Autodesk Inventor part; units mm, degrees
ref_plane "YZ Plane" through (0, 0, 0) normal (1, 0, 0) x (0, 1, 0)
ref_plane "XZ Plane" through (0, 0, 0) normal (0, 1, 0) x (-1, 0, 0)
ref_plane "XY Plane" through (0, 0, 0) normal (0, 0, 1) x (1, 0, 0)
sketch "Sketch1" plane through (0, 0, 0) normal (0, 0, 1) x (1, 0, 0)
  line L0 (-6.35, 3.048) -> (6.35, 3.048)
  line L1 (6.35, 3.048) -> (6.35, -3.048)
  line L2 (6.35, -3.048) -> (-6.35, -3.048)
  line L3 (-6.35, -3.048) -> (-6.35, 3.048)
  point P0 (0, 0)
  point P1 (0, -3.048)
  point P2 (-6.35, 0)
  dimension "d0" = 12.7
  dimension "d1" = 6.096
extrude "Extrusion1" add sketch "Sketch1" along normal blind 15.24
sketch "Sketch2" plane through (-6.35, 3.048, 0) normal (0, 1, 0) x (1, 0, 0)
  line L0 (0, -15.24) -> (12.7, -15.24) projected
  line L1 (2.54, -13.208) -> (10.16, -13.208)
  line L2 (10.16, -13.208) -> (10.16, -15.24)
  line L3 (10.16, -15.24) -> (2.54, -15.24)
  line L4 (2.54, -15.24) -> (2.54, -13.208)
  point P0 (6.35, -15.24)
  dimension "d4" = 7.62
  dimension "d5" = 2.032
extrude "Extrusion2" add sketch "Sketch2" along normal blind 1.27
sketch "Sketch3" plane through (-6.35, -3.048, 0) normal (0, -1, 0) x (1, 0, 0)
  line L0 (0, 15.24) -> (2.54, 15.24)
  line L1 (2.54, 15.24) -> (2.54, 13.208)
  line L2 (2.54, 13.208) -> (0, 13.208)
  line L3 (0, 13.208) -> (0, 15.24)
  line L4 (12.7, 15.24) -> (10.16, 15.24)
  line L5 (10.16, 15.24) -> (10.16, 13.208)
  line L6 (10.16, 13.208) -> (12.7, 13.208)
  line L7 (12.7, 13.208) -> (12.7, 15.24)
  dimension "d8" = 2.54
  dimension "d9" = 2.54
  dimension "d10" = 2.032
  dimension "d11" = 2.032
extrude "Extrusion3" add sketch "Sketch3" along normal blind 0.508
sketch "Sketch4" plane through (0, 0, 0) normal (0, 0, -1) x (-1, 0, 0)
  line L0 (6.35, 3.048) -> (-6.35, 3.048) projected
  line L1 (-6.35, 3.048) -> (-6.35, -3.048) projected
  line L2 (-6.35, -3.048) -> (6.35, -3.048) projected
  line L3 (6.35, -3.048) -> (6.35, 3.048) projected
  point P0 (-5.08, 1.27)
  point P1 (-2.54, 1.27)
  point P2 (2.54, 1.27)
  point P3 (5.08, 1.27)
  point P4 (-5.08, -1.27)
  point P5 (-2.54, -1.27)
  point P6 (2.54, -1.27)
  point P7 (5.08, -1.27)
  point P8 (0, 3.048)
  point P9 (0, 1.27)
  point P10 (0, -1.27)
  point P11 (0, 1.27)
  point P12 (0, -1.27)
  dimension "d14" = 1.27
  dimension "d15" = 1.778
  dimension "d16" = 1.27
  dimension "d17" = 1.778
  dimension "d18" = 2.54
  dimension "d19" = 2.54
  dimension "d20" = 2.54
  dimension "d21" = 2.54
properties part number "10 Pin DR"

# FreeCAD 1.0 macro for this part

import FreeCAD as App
import Part
import Sketcher
Q = App.Units.Quantity


def add_polygon(sketch, points):
    """Adds a closed chain of lines whose ends are joined by coincident constraints."""
    first, n = sketch.GeometryCount, len(points)
    for a, b in zip(points, points[1:] + points[:1]):
        sketch.addGeometry(Part.LineSegment(App.Vector(*a, 0), App.Vector(*b, 0)), False)
    for i in range(n):
        sketch.addConstraint(Sketcher.Constraint("Coincident", first + i, 2, first + (i + 1) % n, 1))

doc = App.newDocument("Part")
body = doc.addObject("PartDesign::Body", "Body")

# Sketch on XY plane
sketch1 = body.newObject("Sketcher::SketchObject", "Sketch")
sketch1.AttachmentSupport = (doc.getObject("XY_Plane"), [""])
sketch1.MapMode = "FlatFace"
add_polygon(sketch1, [(6.35, 3.048), (-6.35, 3.048), (-6.35, -3.048), (6.35, -3.048)])  # lines 0-3
sketch1.addConstraint([
    Sketcher.Constraint("Horizontal", 0),
    Sketcher.Constraint("Vertical", 1),
    Sketcher.Constraint("Horizontal", 2),
    Sketcher.Constraint("Vertical", 3),
    Sketcher.Constraint("Symmetric", 0, 2, 2, 2, -1, 1),
    Sketcher.Constraint("DistanceX", 0, 2, 0, 1, Q("0.5 in")),
    Sketcher.Constraint("DistanceY", 1, 2, 1, 1, Q("0.24 in")),
])
pad1 = body.newObject("PartDesign::Pad", "Pad")
pad1.Profile = sketch1
pad1.Length = Q("0.6 in")

# Sketch on XZ plane
sketch2 = body.newObject("Sketcher::SketchObject", "Sketch001")
sketch2.AttachmentSupport = (doc.getObject("XZ_Plane"), [""])
sketch2.MapMode = "FlatFace"
sketch2.AttachmentOffset = App.Placement(App.Vector(0, 0, -0.12 * 25.4), App.Rotation())
add_polygon(sketch2, [(-3.81, 13.208), (-3.81, 15.24), (3.81, 15.24), (3.81, 13.208)])  # lines 0-3
sketch2.addConstraint([
    Sketcher.Constraint("Vertical", 0),
    Sketcher.Constraint("Horizontal", 1),
    Sketcher.Constraint("Vertical", 2),
    Sketcher.Constraint("Horizontal", 3),
    Sketcher.Constraint("DistanceX", 1, 1, 1, 2, Q("0.3 in")),
    Sketcher.Constraint("DistanceY", 0, 1, 0, 2, Q("0.08 in")),
    Sketcher.Constraint("DistanceY", -1, 1, 0, 2, Q("0.6 in")),
    Sketcher.Constraint("DistanceX", 0, 2, -1, 1, Q("0.15 in")),
])
pad2 = body.newObject("PartDesign::Pad", "Pad001")
pad2.Profile = sketch2
pad2.Length = Q("0.05 in")
pad2.Reversed = True

# Sketch on XZ plane
sketch3 = body.newObject("Sketcher::SketchObject", "Sketch002")
sketch3.AttachmentSupport = (doc.getObject("XZ_Plane"), [""])
sketch3.MapMode = "FlatFace"
sketch3.AttachmentOffset = App.Placement(App.Vector(0, 0, 0.12 * 25.4), App.Rotation())
add_polygon(sketch3, [(-3.81, 15.24), (-6.35, 15.24), (-6.35, 13.208), (-3.81, 13.208)])  # lines 0-3
add_polygon(sketch3, [(6.35, 13.208), (6.35, 15.24), (3.81, 15.24), (3.81, 13.208)])  # lines 4-7
sketch3.addConstraint([
    Sketcher.Constraint("Horizontal", 0),
    Sketcher.Constraint("Vertical", 1),
    Sketcher.Constraint("Horizontal", 2),
    Sketcher.Constraint("Vertical", 3),
    Sketcher.Constraint("Vertical", 4),
    Sketcher.Constraint("Horizontal", 5),
    Sketcher.Constraint("Vertical", 6),
    Sketcher.Constraint("Horizontal", 7),
    Sketcher.Constraint("Symmetric", 0, 2, 4, 2, -2),
    Sketcher.Constraint("Symmetric", 2, 2, 6, 2, -2),
    Sketcher.Constraint("DistanceX", 0, 2, 0, 1, Q("0.1 in")),
    Sketcher.Constraint("DistanceY", 1, 2, 1, 1, Q("0.08 in")),
    Sketcher.Constraint("DistanceY", -1, 1, 0, 2, Q("0.6 in")),
    Sketcher.Constraint("DistanceX", 3, 2, 4, 2, Q("0.4 in")),
])
pad3 = body.newObject("PartDesign::Pad", "Pad002")
pad3.Profile = sketch3
pad3.Length = Q("0.02 in")

doc.recompute()
